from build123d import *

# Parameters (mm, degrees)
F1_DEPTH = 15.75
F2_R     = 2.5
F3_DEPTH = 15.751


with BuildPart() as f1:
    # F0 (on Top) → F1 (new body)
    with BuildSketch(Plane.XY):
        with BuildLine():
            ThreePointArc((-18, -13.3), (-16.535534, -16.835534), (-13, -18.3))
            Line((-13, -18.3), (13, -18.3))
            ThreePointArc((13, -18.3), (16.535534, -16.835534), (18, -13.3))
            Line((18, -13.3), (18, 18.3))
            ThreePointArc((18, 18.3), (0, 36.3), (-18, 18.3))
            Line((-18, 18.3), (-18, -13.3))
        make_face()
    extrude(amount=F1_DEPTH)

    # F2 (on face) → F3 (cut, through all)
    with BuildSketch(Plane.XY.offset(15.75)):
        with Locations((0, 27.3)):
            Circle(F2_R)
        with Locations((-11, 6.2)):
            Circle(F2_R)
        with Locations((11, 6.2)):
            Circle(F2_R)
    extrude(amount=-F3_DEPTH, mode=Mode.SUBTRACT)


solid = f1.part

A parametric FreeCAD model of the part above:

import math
import FreeCAD as App
import Part
import Sketcher

V = App.Vector

doc = App.newDocument("Part")
params = doc.addObject("Spreadsheet::Sheet", "Params")
for row, (alias, value) in enumerate([
    ("sketch1_radius", "5 mm"),
    ("sketch1_radius2", "18 mm"),
    ("sketch1_height", "31.6 mm"),
    ("pad1_length", "15.75 mm"),
    ("sketch2_diameter", "5 mm"),
], start=1):
    params.set(f"A{row}", alias)
    params.set(f"B{row}", "=" + value)
    params.setAlias(f"B{row}", alias)

body = doc.addObject("PartDesign::Body", "Body")

# Sketch on XY plane
sketch1 = body.newObject("Sketcher::SketchObject", "Sketch")
sketch1.AttachmentSupport = (doc.getObject("XY_Plane"), [""])
sketch1.MapMode = "FlatFace"
sketch1.addGeometry([
    Part.ArcOfCircle(Part.Circle(V(-13, -13.3, 0), V(0, 0, 1), 5), math.radians(180), math.radians(270)),  # 0
    Part.LineSegment(V(-13, -18.3, 0), V(13, -18.3, 0)),  # 1
    Part.ArcOfCircle(Part.Circle(V(13, -13.3, 0), V(0, 0, 1), 5), math.radians(-90), math.radians(0)),  # 2
    Part.LineSegment(V(18, -13.3, 0), V(18, 18.3, 0)),  # 3
    Part.ArcOfCircle(Part.Circle(V(0, 18.3, 0), V(0, 0, 1), 18), math.radians(0), math.radians(180)),  # 4
    Part.LineSegment(V(-18, 18.3, 0), V(-18, -13.3, 0)),  # 5
], False)
sketch1.addConstraint([
    Sketcher.Constraint("Tangent", 0, 2, 1, 1),
    Sketcher.Constraint("Tangent", 1, 2, 2, 1),
    Sketcher.Constraint("Tangent", 2, 2, 3, 1),
    Sketcher.Constraint("Tangent", 3, 2, 4, 1),
    Sketcher.Constraint("Tangent", 4, 2, 5, 1),
    Sketcher.Constraint("Tangent", 5, 2, 0, 1),
    Sketcher.Constraint("Horizontal", 1),
    Sketcher.Constraint("Vertical", 3),
    Sketcher.Constraint("Vertical", 5),
    Sketcher.Constraint("Equal", 0, 2),
    Sketcher.Constraint("PointOnObject", 4, 3, -2),
    Sketcher.Constraint("Radius", 0, 5.0),
    Sketcher.Constraint("Radius", 4, 18.0),
    Sketcher.Constraint("DistanceY", 3, 1, 3, 2, 31.6),
    Sketcher.Constraint("DistanceY", 0, 3, -1, 1, 13.3),
])
sketch1.setExpression("Constraints[11]", "Params.sketch1_radius")
sketch1.setExpression("Constraints[12]", "Params.sketch1_radius2")
sketch1.setExpression("Constraints[13]", "Params.sketch1_height")
pad1 = body.newObject("PartDesign::Pad", "Pad")
pad1.Profile = sketch1
pad1.setExpression("Length", "Params.pad1_length")

# Sketch on XY plane
sketch2 = body.newObject("Sketcher::SketchObject", "Sketch001")
sketch2.AttachmentSupport = (doc.getObject("XY_Plane"), [""])
sketch2.MapMode = "FlatFace"
sketch2.AttachmentOffset = App.Placement(V(0, 0, 15.75), App.Rotation())
sketch2.addGeometry([
    Part.Circle(V(0, 27.3, 0), V(0, 0, 1), 2.5),
    Part.Circle(V(-11, 6.2, 0), V(0, 0, 1), 2.5),
    Part.Circle(V(11, 6.2, 0), V(0, 0, 1), 2.5),
], False)
sketch2.addConstraint([
    Sketcher.Constraint("Equal", 0, 1),
    Sketcher.Constraint("Equal", 1, 2),
    Sketcher.Constraint("Symmetric", 1, 3, 2, 3, -2),
    Sketcher.Constraint("PointOnObject", 0, 3, -2),
    Sketcher.Constraint("Diameter", 0, 5.0),
    Sketcher.Constraint("DistanceX", 1, 3, -1, 1, 11.0),
    Sketcher.Constraint("DistanceY", -1, 1, 0, 3, 27.3),
    Sketcher.Constraint("DistanceY", -1, 1, 1, 3, 6.2),
])
sketch2.setExpression("Constraints[4]", "Params.sketch2_diameter")
pocket1 = body.newObject("PartDesign::Pocket", "Pocket")
pocket1.Profile = sketch2
pocket1.Type = "ThroughAll"

doc.recompute()
